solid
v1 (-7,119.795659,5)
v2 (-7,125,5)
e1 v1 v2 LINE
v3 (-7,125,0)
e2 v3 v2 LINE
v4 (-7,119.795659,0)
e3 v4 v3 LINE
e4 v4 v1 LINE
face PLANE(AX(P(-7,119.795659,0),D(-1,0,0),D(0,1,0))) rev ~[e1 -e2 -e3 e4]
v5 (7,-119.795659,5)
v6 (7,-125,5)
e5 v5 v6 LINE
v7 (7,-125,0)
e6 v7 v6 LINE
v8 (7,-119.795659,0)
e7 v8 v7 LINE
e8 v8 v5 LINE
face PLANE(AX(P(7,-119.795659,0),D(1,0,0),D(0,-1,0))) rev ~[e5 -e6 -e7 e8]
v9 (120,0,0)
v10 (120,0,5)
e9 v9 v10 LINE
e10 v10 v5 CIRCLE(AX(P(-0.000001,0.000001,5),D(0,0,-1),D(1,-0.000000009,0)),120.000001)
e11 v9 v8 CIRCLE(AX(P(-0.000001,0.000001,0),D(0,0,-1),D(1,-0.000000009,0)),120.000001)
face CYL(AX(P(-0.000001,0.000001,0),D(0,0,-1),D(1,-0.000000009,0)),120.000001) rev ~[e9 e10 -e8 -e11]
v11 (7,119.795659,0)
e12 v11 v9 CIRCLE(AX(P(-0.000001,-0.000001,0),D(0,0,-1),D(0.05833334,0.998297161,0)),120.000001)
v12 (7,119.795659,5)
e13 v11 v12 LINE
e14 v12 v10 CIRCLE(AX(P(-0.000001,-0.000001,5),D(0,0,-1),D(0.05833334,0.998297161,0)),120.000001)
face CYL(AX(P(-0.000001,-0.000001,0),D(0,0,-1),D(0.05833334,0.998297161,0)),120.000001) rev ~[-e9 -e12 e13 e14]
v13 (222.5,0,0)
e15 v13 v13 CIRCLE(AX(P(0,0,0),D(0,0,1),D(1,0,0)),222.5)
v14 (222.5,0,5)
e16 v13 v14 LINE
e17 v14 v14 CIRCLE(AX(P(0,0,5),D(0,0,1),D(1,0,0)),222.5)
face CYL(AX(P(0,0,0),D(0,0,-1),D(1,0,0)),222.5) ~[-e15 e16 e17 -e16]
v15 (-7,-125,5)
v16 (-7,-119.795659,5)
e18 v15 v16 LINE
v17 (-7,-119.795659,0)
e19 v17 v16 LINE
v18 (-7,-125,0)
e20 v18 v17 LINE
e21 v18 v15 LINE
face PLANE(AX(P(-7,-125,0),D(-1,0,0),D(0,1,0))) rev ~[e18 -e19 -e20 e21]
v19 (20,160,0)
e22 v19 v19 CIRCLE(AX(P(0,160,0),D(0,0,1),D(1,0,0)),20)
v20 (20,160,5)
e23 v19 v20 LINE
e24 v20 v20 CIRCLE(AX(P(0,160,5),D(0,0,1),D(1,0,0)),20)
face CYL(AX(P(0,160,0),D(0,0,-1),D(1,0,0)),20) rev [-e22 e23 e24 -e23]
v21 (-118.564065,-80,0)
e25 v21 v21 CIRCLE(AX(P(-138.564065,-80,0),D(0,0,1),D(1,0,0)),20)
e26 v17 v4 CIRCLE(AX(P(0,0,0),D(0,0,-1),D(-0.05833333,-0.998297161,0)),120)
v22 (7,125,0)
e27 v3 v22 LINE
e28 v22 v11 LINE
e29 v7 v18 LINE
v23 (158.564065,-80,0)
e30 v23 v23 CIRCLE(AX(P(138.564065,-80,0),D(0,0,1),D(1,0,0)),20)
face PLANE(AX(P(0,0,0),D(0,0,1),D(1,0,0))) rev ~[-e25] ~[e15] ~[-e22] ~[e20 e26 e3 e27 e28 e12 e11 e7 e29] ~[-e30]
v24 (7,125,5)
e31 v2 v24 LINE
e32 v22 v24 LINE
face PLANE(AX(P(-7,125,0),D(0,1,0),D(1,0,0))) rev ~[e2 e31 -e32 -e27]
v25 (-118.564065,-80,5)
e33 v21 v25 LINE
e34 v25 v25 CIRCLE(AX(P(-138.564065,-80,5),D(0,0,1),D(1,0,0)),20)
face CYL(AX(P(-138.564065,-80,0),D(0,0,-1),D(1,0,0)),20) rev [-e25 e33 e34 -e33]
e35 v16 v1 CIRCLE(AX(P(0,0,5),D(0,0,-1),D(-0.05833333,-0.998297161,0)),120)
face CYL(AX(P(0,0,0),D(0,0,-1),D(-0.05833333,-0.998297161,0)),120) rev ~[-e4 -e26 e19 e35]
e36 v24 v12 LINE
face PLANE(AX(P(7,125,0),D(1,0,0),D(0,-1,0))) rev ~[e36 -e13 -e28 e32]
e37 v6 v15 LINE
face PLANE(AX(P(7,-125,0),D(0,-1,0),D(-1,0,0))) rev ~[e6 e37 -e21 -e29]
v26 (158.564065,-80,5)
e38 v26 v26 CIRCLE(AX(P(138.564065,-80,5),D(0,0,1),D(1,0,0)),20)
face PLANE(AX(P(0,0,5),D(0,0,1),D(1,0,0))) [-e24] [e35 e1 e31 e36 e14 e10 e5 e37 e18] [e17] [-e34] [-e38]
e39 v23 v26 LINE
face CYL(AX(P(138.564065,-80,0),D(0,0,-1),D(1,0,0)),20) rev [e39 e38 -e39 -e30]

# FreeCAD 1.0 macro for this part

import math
import FreeCAD as App
import Part
import Sketcher

doc = App.newDocument("Part")
body = doc.addObject("PartDesign::Body", "Body")

sketch1 = body.newObject("Sketcher::SketchObject", "Sketch")
sketch1.AttachmentSupport = (doc.getObject("XY_Plane"), [""])
sketch1.MapMode = "FlatFace"
sketch1.addGeometry(Part.Circle(App.Vector(0, 0, 0), App.Vector(0, 0, 1), 222), False)
sketch1.addGeometry(Part.Circle(App.Vector(-139, -80, 0), App.Vector(0, 0, 1), 20), False)
sketch1.addGeometry(Part.Circle(App.Vector(139, -80, 0), App.Vector(0, 0, 1), 20), False)
sketch1.addGeometry(Part.LineSegment(App.Vector(7, 125, 0), App.Vector(7, 120, 0)), False)
sketch1.addGeometry(Part.ArcOfCircle(Part.Circle(App.Vector(0, 0, 0), App.Vector(0, 0, 1), 120), math.radians(0), math.radians(87)), False)
sketch1.addGeometry(Part.ArcOfCircle(Part.Circle(App.Vector(0, 0, 0), App.Vector(0, 0, 1), 120), math.radians(-87), math.radians(0)), False)
sketch1.addGeometry(Part.LineSegment(App.Vector(7, -120, 0), App.Vector(7, -125, 0)), False)
sketch1.addGeometry(Part.LineSegment(App.Vector(7, -125, 0), App.Vector(-7, -125, 0)), False)
sketch1.addGeometry(Part.LineSegment(App.Vector(-7, -125, 0), App.Vector(-7, -120, 0)), False)
sketch1.addGeometry(Part.ArcOfCircle(Part.Circle(App.Vector(0, 0, 0), App.Vector(0, 0, 1), 120), math.radians(93), math.radians(267)), False)
sketch1.addGeometry(Part.LineSegment(App.Vector(-7, 120, 0), App.Vector(-7, 125, 0)), False)
sketch1.addGeometry(Part.LineSegment(App.Vector(-7, 125, 0), App.Vector(7, 125, 0)), False)
sketch1.addGeometry(Part.Circle(App.Vector(0, 160, 0), App.Vector(0, 0, 1), 20), False)
sketch1.addConstraint(Sketcher.Constraint("Coincident", 3, 2, 4, 2))
sketch1.addConstraint(Sketcher.Constraint("Tangent", 4, 1, 5, 2))
sketch1.addConstraint(Sketcher.Constraint("Coincident", 5, 1, 6, 1))
sketch1.addConstraint(Sketcher.Constraint("Coincident", 6, 2, 7, 1))
sketch1.addConstraint(Sketcher.Constraint("Coincident", 7, 2, 8, 1))
sketch1.addConstraint(Sketcher.Constraint("Coincident", 8, 2, 9, 2))
sketch1.addConstraint(Sketcher.Constraint("Coincident", 9, 1, 10, 1))
sketch1.addConstraint(Sketcher.Constraint("Coincident", 10, 2, 11, 1))
sketch1.addConstraint(Sketcher.Constraint("Coincident", 11, 2, 3, 1))
sketch1.addConstraint(Sketcher.Constraint("Vertical", 3))
sketch1.addConstraint(Sketcher.Constraint("Vertical", 6))
sketch1.addConstraint(Sketcher.Constraint("Horizontal", 7))
sketch1.addConstraint(Sketcher.Constraint("Vertical", 8))
sketch1.addConstraint(Sketcher.Constraint("Vertical", 10))
sketch1.addConstraint(Sketcher.Constraint("Horizontal", 11))
sketch1.addConstraint(Sketcher.Constraint("Coincident", 0, 3, -1, 1))
sketch1.addConstraint(Sketcher.Constraint("Coincident", 4, 3, -1, 1))
sketch1.addConstraint(Sketcher.Constraint("Coincident", 9, 3, -1, 1))
sketch1.addConstraint(Sketcher.Constraint("Equal", 1, 2))
sketch1.addConstraint(Sketcher.Constraint("Equal", 4, 5))
sketch1.addConstraint(Sketcher.Constraint("Equal", 5, 9))
sketch1.addConstraint(Sketcher.Constraint("Equal", 2, 12))
sketch1.addConstraint(Sketcher.Constraint("Symmetric", 6, 2, 10, 2, -1, 1))
sketch1.addConstraint(Sketcher.Constraint("Symmetric", 1, 3, 2, 3, -2))
sketch1.addConstraint(Sketcher.Constraint("PointOnObject", 12, 3, -2))
sketch1.addConstraint(Sketcher.Constraint("PointOnObject", 4, 1, -1))
sketch1.addConstraint(Sketcher.Constraint("Horizontal", 5, 1, 8, 2))
sketch1.addConstraint(Sketcher.Constraint("Horizontal", 3, 2, 9, 1))
sketch1.addConstraint(Sketcher.Constraint("Diameter", 0, 445.0))
sketch1.addConstraint(Sketcher.Constraint("Diameter", 1, 40.0))
sketch1.addConstraint(Sketcher.Constraint("Radius", 4, 120.000001))
sketch1.addConstraint(Sketcher.Constraint("DistanceX", 7, 2, 7, 1, 14.0))
sketch1.addConstraint(Sketcher.Constraint("DistanceY", 1, 3, -1, 1, 80.0))
sketch1.addConstraint(Sketcher.Constraint("DistanceY", -1, 1, 12, 3, 160.0))
sketch1.addConstraint(Sketcher.Constraint("DistanceY", 6, 2, -1, 1, 125.0))
sketch1.addConstraint(Sketcher.Constraint("DistanceX", 1, 3, 2, 3, 277.12813))
pad1 = body.newObject("PartDesign::Pad", "Pad")
pad1.Profile = sketch1
pad1.Length = 5

doc.recompute()
